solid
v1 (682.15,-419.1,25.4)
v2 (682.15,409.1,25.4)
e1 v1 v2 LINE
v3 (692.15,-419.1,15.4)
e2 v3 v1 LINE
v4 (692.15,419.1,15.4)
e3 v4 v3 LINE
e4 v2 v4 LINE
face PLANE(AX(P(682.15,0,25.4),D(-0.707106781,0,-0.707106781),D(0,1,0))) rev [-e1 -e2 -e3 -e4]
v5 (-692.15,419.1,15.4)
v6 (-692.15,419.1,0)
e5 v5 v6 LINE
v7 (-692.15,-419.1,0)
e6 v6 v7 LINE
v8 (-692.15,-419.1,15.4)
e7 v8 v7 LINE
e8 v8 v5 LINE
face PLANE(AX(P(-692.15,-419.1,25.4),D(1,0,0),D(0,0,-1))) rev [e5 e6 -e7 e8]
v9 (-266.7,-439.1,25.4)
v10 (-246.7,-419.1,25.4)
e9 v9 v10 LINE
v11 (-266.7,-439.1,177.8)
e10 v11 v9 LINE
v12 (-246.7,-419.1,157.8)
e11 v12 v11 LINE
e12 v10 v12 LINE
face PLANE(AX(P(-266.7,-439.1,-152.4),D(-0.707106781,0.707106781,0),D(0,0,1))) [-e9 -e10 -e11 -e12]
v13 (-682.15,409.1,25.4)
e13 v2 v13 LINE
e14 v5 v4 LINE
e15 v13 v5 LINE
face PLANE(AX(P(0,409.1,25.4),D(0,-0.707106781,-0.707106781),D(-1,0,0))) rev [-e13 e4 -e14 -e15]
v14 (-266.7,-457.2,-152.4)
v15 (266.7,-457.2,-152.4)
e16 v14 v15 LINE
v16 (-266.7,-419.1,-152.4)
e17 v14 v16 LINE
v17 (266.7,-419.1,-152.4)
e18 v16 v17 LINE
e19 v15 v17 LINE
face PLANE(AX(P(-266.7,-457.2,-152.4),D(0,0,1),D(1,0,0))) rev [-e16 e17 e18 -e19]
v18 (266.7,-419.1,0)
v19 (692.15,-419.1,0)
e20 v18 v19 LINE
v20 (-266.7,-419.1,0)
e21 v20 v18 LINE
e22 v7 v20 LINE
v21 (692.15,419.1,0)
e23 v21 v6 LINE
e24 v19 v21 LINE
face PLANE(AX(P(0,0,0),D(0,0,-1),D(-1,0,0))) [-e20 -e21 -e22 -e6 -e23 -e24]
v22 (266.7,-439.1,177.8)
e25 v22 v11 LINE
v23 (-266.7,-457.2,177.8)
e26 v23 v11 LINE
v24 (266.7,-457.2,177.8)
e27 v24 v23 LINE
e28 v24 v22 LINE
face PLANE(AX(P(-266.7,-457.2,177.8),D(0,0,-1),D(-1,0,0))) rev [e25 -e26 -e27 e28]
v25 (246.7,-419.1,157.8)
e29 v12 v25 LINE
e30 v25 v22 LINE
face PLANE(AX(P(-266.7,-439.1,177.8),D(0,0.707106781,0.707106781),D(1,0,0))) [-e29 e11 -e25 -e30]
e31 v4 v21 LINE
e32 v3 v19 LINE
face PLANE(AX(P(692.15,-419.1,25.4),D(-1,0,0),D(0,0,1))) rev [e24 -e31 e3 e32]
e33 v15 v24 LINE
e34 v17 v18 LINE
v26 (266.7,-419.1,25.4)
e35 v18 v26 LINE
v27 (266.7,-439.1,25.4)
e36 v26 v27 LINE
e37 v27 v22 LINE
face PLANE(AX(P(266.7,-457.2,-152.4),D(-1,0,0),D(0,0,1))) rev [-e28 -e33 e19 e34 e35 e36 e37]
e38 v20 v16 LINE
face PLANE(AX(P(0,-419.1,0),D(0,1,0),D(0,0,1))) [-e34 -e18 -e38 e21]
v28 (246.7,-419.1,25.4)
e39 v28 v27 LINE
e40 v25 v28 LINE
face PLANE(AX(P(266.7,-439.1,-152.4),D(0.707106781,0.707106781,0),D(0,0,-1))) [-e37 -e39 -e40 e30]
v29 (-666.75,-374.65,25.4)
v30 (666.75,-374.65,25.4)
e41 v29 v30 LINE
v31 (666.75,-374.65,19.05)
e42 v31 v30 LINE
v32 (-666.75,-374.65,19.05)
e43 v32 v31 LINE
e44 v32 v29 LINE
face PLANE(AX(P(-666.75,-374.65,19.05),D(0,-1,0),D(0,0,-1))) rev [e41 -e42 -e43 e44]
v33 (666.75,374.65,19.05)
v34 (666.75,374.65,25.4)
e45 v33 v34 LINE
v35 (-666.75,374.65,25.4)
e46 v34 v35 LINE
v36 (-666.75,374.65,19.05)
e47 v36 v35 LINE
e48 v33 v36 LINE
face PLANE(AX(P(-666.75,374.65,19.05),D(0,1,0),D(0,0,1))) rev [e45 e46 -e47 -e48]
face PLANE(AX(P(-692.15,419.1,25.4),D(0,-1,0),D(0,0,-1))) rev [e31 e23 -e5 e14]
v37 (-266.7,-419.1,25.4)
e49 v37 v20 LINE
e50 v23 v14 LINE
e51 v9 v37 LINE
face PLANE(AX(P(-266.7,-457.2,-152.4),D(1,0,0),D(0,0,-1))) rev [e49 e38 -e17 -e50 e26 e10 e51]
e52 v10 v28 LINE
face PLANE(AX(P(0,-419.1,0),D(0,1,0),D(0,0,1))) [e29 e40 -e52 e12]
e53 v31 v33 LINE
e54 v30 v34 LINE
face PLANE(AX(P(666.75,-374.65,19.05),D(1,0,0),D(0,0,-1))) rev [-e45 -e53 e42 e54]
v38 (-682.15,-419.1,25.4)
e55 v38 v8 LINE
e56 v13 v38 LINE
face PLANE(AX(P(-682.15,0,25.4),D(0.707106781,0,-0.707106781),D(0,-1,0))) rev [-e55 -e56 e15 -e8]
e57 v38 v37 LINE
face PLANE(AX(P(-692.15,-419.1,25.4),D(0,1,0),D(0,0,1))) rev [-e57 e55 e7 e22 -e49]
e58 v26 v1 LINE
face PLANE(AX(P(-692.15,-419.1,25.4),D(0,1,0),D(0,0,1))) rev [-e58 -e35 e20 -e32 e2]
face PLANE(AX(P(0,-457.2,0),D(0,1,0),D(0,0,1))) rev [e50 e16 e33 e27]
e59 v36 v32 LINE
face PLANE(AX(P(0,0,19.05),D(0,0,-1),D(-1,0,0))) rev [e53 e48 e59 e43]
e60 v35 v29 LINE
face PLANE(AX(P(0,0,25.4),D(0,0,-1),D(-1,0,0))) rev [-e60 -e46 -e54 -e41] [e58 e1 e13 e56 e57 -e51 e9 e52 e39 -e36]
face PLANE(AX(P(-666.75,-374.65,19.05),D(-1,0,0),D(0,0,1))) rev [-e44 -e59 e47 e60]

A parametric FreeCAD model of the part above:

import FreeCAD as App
import Part
import Sketcher
from FreeCAD import Vector
Q = App.Units.Quantity


def edges_at(feature, points):
    """Names of the edges that pass closest to the given points."""
    edges = feature.Shape.Edges
    near = lambda p: min(range(len(edges)), key=lambda i: edges[i].distToShape(Part.Vertex(*p))[0])
    return sorted({f"Edge{near(p) + 1}" for p in points})


def add_polygon(sketch, points):
    """Adds a closed chain of lines whose ends are joined by coincident constraints."""
    first, n = sketch.GeometryCount, len(points)
    for a, b in zip(points, points[1:] + points[:1]):
        sketch.addGeometry(Part.LineSegment(App.Vector(*a, 0), App.Vector(*b, 0)), False)
    for i in range(n):
        sketch.addConstraint(Sketcher.Constraint("Coincident", first + i, 2, first + (i + 1) % n, 1))

doc = App.newDocument("Part")
body = doc.addObject("PartDesign::Body", "Body")

# Sketch on XY plane
sketch1 = doc.addObject("Sketcher::SketchObject", "Sketch")
body.addObject(sketch1)
sketch1.AttachmentSupport = (doc.XY_Plane, [""])
sketch1.MapMode = "FlatFace"
add_polygon(sketch1, [(-692, 419), (-692, -419), (692, -419), (692, 419)])  # lines 0-3
sketch1.addConstraint(Sketcher.Constraint("Vertical", 0))
sketch1.addConstraint(Sketcher.Constraint("Horizontal", 1))
sketch1.addConstraint(Sketcher.Constraint("Vertical", 2))
sketch1.addConstraint(Sketcher.Constraint("Horizontal", 3))
sketch1.addConstraint(Sketcher.Constraint("Symmetric", 0, 2, 2, 2, -1, 1))
sketch1.addConstraint(Sketcher.Constraint("DistanceY", 0, 2, 0, 1, Q("33 in")))
sketch1.addConstraint(Sketcher.Constraint("DistanceX", 1, 1, 1, 2, Q("54.5 in")))
pad1 = doc.addObject("PartDesign::Pad", "Pad")
body.addObject(pad1)
pad1.Profile = sketch1
pad1.Length = Q("1 in")
doc.recompute()

chamfer = doc.addObject("PartDesign::Chamfer", "Chamfer")
body.addObject(chamfer)
chamfer.Base = (pad1, edges_at(pad1, [(-692.15, 0, 25.4), (692.15, 0, 25.4), (0, 419.1, 25.4)]))
chamfer.Size = 10

# Sketch on XY plane
sketch2 = doc.addObject("Sketcher::SketchObject", "Sketch001")
body.addObject(sketch2)
sketch2.AttachmentSupport = (doc.XY_Plane, [""])
sketch2.MapMode = "FlatFace"
sketch2.AttachmentOffset = App.Placement(Vector(0, 0, 1 * 25.4), App.Rotation())
add_polygon(sketch2, [(-667, 375), (-667, -375), (667, -375), (667, 375)])  # lines 0-3
sketch2.addConstraint(Sketcher.Constraint("Vertical", 0))
sketch2.addConstraint(Sketcher.Constraint("Horizontal", 1))
sketch2.addConstraint(Sketcher.Constraint("Vertical", 2))
sketch2.addConstraint(Sketcher.Constraint("Horizontal", 3))
sketch2.addConstraint(Sketcher.Constraint("Symmetric", 0, 2, 2, 2, -1, 1))
sketch2.addConstraint(Sketcher.Constraint("DistanceX", 1, 1, 1, 2, Q("52.5 in")))
sketch2.addConstraint(Sketcher.Constraint("DistanceY", 0, 2, 0, 1, Q("29.5 in")))
pocket1 = doc.addObject("PartDesign::Pocket", "Pocket")
body.addObject(pocket1)
pocket1.Profile = sketch2
pocket1.Length = Q("0.25 in")

# Sketch on XZ plane
sketch3 = doc.addObject("Sketcher::SketchObject", "Sketch002")
body.addObject(sketch3)
sketch3.AttachmentSupport = (doc.XZ_Plane, [""])
sketch3.MapMode = "FlatFace"
sketch3.AttachmentOffset = App.Placement(Vector(0, 0, 16.5 * 25.4), App.Rotation())
add_polygon(sketch3, [(-267, 178), (-267, -152), (267, -152), (267, 178)])  # lines 0-3
sketch3.addConstraint(Sketcher.Constraint("Vertical", 0))
sketch3.addConstraint(Sketcher.Constraint("Horizontal", 1))
sketch3.addConstraint(Sketcher.Constraint("Vertical", 2))
sketch3.addConstraint(Sketcher.Constraint("Horizontal", 3))
sketch3.addConstraint(Sketcher.Constraint("DistanceX", 1, 1, 1, 2, Q("21 in")))
sketch3.addConstraint(Sketcher.Constraint("DistanceY", 0, 2, 0, 1, Q("13 in")))
sketch3.addConstraint(Sketcher.Constraint("DistanceY", 0, 2, -1, 1, Q("6 in")))
sketch3.addConstraint(Sketcher.Constraint("DistanceX", 0, 2, -1, 1, Q("10.5 in")))
pad2 = doc.addObject("PartDesign::Pad", "Pad001")
body.addObject(pad2)
pad2.Profile = sketch3
pad2.Length = Q("1.5 in")
doc.recompute()

chamfer2 = doc.addObject("PartDesign::Chamfer", "Chamfer001")
body.addObject(chamfer2)
chamfer2.Base = (pad2, edges_at(pad2, [(266.7, -419.1, 101.6), (-266.7, -419.1, 101.6), (0, -419.1, 177.8)]))
chamfer2.Size = 20

doc.recompute()
